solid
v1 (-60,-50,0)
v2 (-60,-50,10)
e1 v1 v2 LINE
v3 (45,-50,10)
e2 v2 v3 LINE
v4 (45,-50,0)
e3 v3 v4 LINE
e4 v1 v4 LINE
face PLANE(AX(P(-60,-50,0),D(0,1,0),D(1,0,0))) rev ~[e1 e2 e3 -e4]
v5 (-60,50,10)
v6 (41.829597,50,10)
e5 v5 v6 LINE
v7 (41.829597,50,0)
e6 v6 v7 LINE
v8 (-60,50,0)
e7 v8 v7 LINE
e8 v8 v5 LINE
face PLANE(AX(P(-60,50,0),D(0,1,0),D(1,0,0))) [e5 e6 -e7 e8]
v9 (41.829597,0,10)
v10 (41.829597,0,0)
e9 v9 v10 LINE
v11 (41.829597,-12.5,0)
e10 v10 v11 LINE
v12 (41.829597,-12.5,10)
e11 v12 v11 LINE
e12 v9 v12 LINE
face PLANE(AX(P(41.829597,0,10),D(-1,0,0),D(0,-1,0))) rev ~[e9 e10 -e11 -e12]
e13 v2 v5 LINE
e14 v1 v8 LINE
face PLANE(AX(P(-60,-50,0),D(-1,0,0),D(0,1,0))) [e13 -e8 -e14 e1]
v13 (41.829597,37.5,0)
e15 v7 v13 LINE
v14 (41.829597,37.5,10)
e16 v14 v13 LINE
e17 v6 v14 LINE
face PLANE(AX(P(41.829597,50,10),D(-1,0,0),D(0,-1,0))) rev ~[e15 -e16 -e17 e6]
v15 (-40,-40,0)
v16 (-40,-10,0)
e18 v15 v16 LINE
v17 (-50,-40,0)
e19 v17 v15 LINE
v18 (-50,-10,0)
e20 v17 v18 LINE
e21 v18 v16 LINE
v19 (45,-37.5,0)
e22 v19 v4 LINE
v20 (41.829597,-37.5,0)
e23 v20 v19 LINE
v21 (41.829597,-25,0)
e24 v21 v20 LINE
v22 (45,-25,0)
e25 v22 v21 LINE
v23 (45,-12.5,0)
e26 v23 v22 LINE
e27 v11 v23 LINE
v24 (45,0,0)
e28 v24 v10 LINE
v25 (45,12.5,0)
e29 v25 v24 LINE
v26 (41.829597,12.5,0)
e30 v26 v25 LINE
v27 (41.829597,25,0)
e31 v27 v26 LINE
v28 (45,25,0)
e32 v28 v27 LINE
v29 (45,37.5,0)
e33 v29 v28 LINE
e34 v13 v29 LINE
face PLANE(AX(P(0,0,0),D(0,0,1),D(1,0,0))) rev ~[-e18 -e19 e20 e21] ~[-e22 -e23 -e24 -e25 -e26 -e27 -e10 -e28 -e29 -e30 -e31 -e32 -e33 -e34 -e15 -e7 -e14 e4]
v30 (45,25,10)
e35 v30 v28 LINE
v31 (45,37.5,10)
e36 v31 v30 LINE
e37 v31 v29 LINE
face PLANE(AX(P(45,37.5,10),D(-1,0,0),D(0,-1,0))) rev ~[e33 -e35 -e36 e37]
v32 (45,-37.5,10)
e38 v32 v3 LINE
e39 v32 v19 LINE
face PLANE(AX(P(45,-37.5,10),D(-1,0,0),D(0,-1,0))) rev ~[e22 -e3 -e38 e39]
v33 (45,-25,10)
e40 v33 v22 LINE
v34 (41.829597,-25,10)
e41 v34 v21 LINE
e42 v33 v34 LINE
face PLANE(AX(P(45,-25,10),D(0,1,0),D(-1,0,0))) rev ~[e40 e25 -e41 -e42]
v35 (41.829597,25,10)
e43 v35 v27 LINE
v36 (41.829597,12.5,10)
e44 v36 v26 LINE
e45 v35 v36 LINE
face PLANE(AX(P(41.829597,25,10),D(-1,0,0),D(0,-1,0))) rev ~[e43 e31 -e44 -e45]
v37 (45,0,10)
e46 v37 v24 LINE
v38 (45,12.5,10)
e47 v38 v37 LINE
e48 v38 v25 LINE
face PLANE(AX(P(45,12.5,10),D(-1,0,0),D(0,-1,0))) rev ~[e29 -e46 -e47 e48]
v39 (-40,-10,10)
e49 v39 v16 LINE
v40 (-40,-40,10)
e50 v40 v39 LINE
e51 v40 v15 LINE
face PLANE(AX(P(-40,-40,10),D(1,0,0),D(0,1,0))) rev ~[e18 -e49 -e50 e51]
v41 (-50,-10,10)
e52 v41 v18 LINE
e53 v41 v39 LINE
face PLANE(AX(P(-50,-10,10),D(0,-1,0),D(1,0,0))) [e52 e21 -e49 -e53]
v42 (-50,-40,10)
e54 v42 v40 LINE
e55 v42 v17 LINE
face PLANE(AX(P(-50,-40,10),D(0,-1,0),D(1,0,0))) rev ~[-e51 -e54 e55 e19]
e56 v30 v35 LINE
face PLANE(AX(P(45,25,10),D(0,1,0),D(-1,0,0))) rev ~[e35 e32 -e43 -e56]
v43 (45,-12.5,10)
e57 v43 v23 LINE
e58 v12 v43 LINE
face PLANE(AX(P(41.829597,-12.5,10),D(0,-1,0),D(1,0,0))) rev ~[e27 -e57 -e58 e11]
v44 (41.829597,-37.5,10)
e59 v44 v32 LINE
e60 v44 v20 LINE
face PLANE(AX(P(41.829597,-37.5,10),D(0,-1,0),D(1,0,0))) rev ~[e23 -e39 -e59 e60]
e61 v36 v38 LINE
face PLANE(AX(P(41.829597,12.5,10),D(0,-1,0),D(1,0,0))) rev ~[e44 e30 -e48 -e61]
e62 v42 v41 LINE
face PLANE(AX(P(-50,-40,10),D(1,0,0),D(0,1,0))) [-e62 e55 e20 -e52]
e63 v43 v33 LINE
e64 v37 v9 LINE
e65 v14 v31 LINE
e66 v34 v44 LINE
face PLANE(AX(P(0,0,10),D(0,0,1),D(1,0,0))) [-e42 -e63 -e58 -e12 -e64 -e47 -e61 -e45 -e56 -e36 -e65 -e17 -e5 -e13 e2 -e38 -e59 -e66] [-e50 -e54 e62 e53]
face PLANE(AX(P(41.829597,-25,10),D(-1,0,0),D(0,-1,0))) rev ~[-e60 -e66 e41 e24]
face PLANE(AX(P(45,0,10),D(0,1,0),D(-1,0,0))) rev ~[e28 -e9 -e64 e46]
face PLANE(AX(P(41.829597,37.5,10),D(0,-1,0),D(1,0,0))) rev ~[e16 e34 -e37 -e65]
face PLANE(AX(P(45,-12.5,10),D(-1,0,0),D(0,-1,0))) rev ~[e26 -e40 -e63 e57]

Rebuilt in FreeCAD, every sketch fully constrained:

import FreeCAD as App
import Part
import Sketcher

V = App.Vector
Q = App.Units.Quantity

doc = App.newDocument("Part")
params = doc.addObject("Spreadsheet::Sheet", "Params")
for row, (alias, value) in enumerate([
    ("sketch1_width", "120 mm"),
    ("sketch1_height", "100 mm"),
    ("pad1_length", "10 mm"),
    ("sketch2_width", "10 mm"),
    ("sketch2_height", "30 mm"),
    ("sketch3_width", "15 mm"),
    ("sketch3_height", "100 mm"),
    ("pocket2_length", "25 mm"),
], start=1):
    params.set(f"A{row}", alias)
    params.set(f"B{row}", "=" + value)
    params.setAlias(f"B{row}", alias)

body = doc.addObject("PartDesign::Body", "Body")

# Sketch on XY plane
sketch1 = body.newObject("Sketcher::SketchObject", "Sketch")
sketch1.AttachmentSupport = (doc.getObject("XY_Plane"), [""])
sketch1.MapMode = "FlatFace"
sketch1.addGeometry([
    Part.LineSegment(V(-60, 50, 0), V(-60, -50, 0)),
    Part.LineSegment(V(-60, -50, 0), V(60, -50, 0)),
    Part.LineSegment(V(60, -50, 0), V(60, 50, 0)),
    Part.LineSegment(V(60, 50, 0), V(-60, 50, 0)),
], False)
sketch1.addConstraint([
    Sketcher.Constraint("Coincident", 0, 2, 1, 1),
    Sketcher.Constraint("Coincident", 1, 2, 2, 1),
    Sketcher.Constraint("Coincident", 2, 2, 3, 1),
    Sketcher.Constraint("Coincident", 3, 2, 0, 1),
    Sketcher.Constraint("Vertical", 0),
    Sketcher.Constraint("Horizontal", 1),
    Sketcher.Constraint("Vertical", 2),
    Sketcher.Constraint("Horizontal", 3),
    Sketcher.Constraint("Symmetric", 0, 2, 2, 2, -1, 1),
    Sketcher.Constraint("DistanceX", 1, 1, 1, 2, Q("120 mm")),
    Sketcher.Constraint("DistanceY", 0, 2, 0, 1, Q("100 mm")),
])
sketch1.setExpression("Constraints[9]", "Params.sketch1_width")
sketch1.setExpression("Constraints[10]", "Params.sketch1_height")
pad1 = body.newObject("PartDesign::Pad", "Pad")
pad1.Profile = sketch1
pad1.setExpression("Length", "Params.pad1_length")

# Sketch on XY plane
sketch2 = body.newObject("Sketcher::SketchObject", "Sketch001")
sketch2.AttachmentSupport = (doc.getObject("XY_Plane"), [""])
sketch2.MapMode = "FlatFace"
sketch2.AttachmentOffset = App.Placement(V(0, 0, 10), App.Rotation())
sketch2.addGeometry([
    Part.LineSegment(V(-50, -10, 0), V(-50, -40, 0)),
    Part.LineSegment(V(-50, -40, 0), V(-40, -40, 0)),
    Part.LineSegment(V(-40, -40, 0), V(-40, -10, 0)),
    Part.LineSegment(V(-40, -10, 0), V(-50, -10, 0)),
], False)
sketch2.addConstraint([
    Sketcher.Constraint("Coincident", 0, 2, 1, 1),
    Sketcher.Constraint("Coincident", 1, 2, 2, 1),
    Sketcher.Constraint("Coincident", 2, 2, 3, 1),
    Sketcher.Constraint("Coincident", 3, 2, 0, 1),
    Sketcher.Constraint("Vertical", 0),
    Sketcher.Constraint("Horizontal", 1),
    Sketcher.Constraint("Vertical", 2),
    Sketcher.Constraint("Horizontal", 3),
    Sketcher.Constraint("DistanceX", 1, 1, 1, 2, Q("10 mm")),
    Sketcher.Constraint("DistanceY", 0, 2, 0, 1, Q("30 mm")),
    Sketcher.Constraint("DistanceX", 0, 2, -1, 1, Q("50 mm")),
    Sketcher.Constraint("DistanceY", 0, 2, -1, 1, Q("40 mm")),
])
sketch2.setExpression("Constraints[8]", "Params.sketch2_width")
sketch2.setExpression("Constraints[9]", "Params.sketch2_height")
pocket1 = body.newObject("PartDesign::Pocket", "Pocket")
pocket1.Profile = sketch2
pocket1.Type = "ThroughAll"

# Sketch on XY plane
sketch3 = body.newObject("Sketcher::SketchObject", "Sketch002")
sketch3.AttachmentSupport = (doc.getObject("XY_Plane"), [""])
sketch3.MapMode = "FlatFace"
sketch3.AttachmentOffset = App.Placement(V(0, 0, 10), App.Rotation())
sketch3.addGeometry([
    Part.LineSegment(V(45, -50, 0), V(60, -50, 0)),  # 0
    Part.LineSegment(V(60, -50, 0), V(60, 50, 0)),  # 1
    Part.LineSegment(V(60, 50, 0), V(41.829597, 50, 0)),  # 2
    Part.LineSegment(V(41.829597, 50, 0), V(41.829597, 37.5, 0)),  # 3
    Part.LineSegment(V(41.829597, 37.5, 0), V(45, 37.5, 0)),  # 4
    Part.LineSegment(V(45, 37.5, 0), V(45, 25, 0)),  # 5
    Part.LineSegment(V(45, 25, 0), V(41.829597, 25, 0)),  # 6
    Part.LineSegment(V(41.829597, 25, 0), V(41.829597, 12.5, 0)),  # 7
    Part.LineSegment(V(41.829597, 12.5, 0), V(45, 12.5, 0)),  # 8
    Part.LineSegment(V(45, 12.5, 0), V(45, 0, 0)),  # 9
    Part.LineSegment(V(45, 0, 0), V(41.829597, 0, 0)),  # 10
    Part.LineSegment(V(41.829597, 0, 0), V(41.829597, -12.5, 0)),  # 11
    Part.LineSegment(V(41.829597, -12.5, 0), V(45, -12.5, 0)),  # 12
    Part.LineSegment(V(45, -12.5, 0), V(45, -25, 0)),  # 13
    Part.LineSegment(V(45, -25, 0), V(41.829597, -25, 0)),  # 14
    Part.LineSegment(V(41.829597, -25, 0), V(41.829597, -37.5, 0)),  # 15
    Part.LineSegment(V(41.829597, -37.5, 0), V(45, -37.5, 0)),  # 16
    Part.LineSegment(V(45, -37.5, 0), V(45, -50, 0)),  # 17
], False)
sketch3.addConstraint([
    Sketcher.Constraint("Coincident", 0, 2, 1, 1),
    Sketcher.Constraint("Coincident", 1, 2, 2, 1),
    Sketcher.Constraint("Coincident", 2, 2, 3, 1),
    Sketcher.Constraint("Coincident", 3, 2, 4, 1),
    Sketcher.Constraint("Coincident", 4, 2, 5, 1),
    Sketcher.Constraint("Coincident", 5, 2, 6, 1),
    Sketcher.Constraint("Coincident", 6, 2, 7, 1),
    Sketcher.Constraint("Coincident", 7, 2, 8, 1),
    Sketcher.Constraint("Coincident", 8, 2, 9, 1),
    Sketcher.Constraint("Coincident", 9, 2, 10, 1),
    Sketcher.Constraint("Coincident", 10, 2, 11, 1),
    Sketcher.Constraint("Coincident", 11, 2, 12, 1),
    Sketcher.Constraint("Coincident", 12, 2, 13, 1),
    Sketcher.Constraint("Coincident", 13, 2, 14, 1),
    Sketcher.Constraint("Coincident", 14, 2, 15, 1),
    Sketcher.Constraint("Coincident", 15, 2, 16, 1),
    Sketcher.Constraint("Coincident", 16, 2, 17, 1),
    Sketcher.Constraint("Coincident", 17, 2, 0, 1),
    Sketcher.Constraint("Horizontal", 0),
    Sketcher.Constraint("Vertical", 1),
    Sketcher.Constraint("Horizontal", 2),
    Sketcher.Constraint("Vertical", 3),
    Sketcher.Constraint("Horizontal", 4),
    Sketcher.Constraint("Vertical", 5),
    Sketcher.Constraint("Horizontal", 6),
    Sketcher.Constraint("Vertical", 7),
    Sketcher.Constraint("Horizontal", 8),
    Sketcher.Constraint("Vertical", 9),
    Sketcher.Constraint("Horizontal", 10),
    Sketcher.Constraint("Vertical", 11),
    Sketcher.Constraint("Horizontal", 12),
    Sketcher.Constraint("Vertical", 13),
    Sketcher.Constraint("Horizontal", 14),
    Sketcher.Constraint("Vertical", 15),
    Sketcher.Constraint("Horizontal", 16),
    Sketcher.Constraint("Vertical", 17),
    Sketcher.Constraint("Symmetric", 7, 2, 11, 2, -1),
    Sketcher.Constraint("Symmetric", 5, 2, 13, 2, -1),
    Sketcher.Constraint("Symmetric", 3, 2, 15, 2, -1),
    Sketcher.Constraint("PointOnObject", 9, 2, -1),
    Sketcher.Constraint("Vertical", 3, 2, 6, 2),
    Sketcher.Constraint("Vertical", 5, 2, 8, 2),
    Sketcher.Constraint("Vertical", 13, 2, 16, 2),
    Sketcher.Constraint("Equal", 3, 5),
    Sketcher.Constraint("Equal", 5, 7),
    Sketcher.Constraint("Equal", 7, 9),
    Sketcher.Constraint("Equal", 15, 17),
    Sketcher.Constraint("DistanceX", 0, 1, 0, 2, Q("15 mm")),
    Sketcher.Constraint("DistanceY", 1, 1, 1, 2, Q("100 mm")),
    Sketcher.Constraint("DistanceX", -1, 1, 0, 2, Q("60 mm")),
    Sketcher.Constraint("DistanceX", 2, 2, 2, 1, Q("18.170403 mm")),
])
sketch3.setExpression("Constraints[47]", "Params.sketch3_width")
sketch3.setExpression("Constraints[48]", "Params.sketch3_height")
pocket2 = body.newObject("PartDesign::Pocket", "Pocket001")
pocket2.Profile = sketch3
pocket2.setExpression("Length", "Params.pocket2_length")

doc.recompute()
